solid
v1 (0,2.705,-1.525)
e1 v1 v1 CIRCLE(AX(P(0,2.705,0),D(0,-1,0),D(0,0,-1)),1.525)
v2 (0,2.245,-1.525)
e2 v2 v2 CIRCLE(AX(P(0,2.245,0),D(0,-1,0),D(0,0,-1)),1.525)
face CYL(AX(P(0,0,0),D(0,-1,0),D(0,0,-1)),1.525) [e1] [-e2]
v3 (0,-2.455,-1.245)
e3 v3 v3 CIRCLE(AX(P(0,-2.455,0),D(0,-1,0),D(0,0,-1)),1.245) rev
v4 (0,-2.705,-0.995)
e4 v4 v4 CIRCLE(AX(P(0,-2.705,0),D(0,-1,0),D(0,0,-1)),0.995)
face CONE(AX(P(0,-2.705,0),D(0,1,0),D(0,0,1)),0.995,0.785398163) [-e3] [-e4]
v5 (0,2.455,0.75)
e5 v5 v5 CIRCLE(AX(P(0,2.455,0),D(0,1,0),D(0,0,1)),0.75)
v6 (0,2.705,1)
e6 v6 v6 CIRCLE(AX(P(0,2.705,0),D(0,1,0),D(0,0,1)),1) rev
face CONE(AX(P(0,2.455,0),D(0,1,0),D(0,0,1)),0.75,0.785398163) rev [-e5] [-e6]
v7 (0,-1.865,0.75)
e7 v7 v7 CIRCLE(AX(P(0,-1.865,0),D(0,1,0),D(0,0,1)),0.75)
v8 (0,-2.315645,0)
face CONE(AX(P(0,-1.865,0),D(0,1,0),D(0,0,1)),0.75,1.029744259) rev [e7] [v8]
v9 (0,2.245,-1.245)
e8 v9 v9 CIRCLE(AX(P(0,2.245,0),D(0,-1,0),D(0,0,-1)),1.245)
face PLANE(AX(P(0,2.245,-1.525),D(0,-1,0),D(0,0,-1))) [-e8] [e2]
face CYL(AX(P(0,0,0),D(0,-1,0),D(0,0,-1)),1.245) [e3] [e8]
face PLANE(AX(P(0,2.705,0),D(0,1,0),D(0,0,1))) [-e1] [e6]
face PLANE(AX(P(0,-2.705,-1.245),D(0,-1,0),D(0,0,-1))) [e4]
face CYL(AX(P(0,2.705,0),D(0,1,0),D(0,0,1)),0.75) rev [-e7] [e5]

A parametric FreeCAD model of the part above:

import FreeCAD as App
import Part
import Sketcher

V = App.Vector


def edges_at(feature, points):
    """Names of the edges that pass closest to the given points."""
    edges = feature.Shape.Edges
    near = lambda p: min(range(len(edges)), key=lambda i: edges[i].distToShape(Part.Vertex(*p))[0])
    return sorted({f"Edge{near(p) + 1}" for p in points})

doc = App.newDocument("Part")
body = doc.addObject("PartDesign::Body", "Body")

sketch1 = body.newObject("Sketcher::SketchObject", "Sketch")
sketch1.AttachmentSupport = (doc.getObject("YZ_Plane"), [""])
sketch1.MapMode = "FlatFace"
sketch1.addGeometry(Part.LineSegment(V(2.71, -1.52, 0), V(2.71, 0, 0)), False)
sketch1.addGeometry(Part.LineSegment(V(2.71, 0, 0), V(-2.71, 0, 0)), False)
sketch1.addGeometry(Part.LineSegment(V(-2.71, 0, 0), V(-2.71, -1.25, 0)), False)
sketch1.addGeometry(Part.LineSegment(V(-2.71, -1.25, 0), V(2.25, -1.25, 0)), False)
sketch1.addGeometry(Part.LineSegment(V(2.25, -1.25, 0), V(2.25, -1.52, 0)), False)
sketch1.addGeometry(Part.LineSegment(V(2.25, -1.52, 0), V(2.71, -1.52, 0)), False)
sketch1.addConstraint(Sketcher.Constraint("Coincident", 0, 2, 1, 1))
sketch1.addConstraint(Sketcher.Constraint("Coincident", 1, 2, 2, 1))
sketch1.addConstraint(Sketcher.Constraint("Coincident", 2, 2, 3, 1))
sketch1.addConstraint(Sketcher.Constraint("Coincident", 3, 2, 4, 1))
sketch1.addConstraint(Sketcher.Constraint("Coincident", 4, 2, 5, 1))
sketch1.addConstraint(Sketcher.Constraint("Coincident", 5, 2, 0, 1))
sketch1.addConstraint(Sketcher.Constraint("Vertical", 0))
sketch1.addConstraint(Sketcher.Constraint("Horizontal", 1))
sketch1.addConstraint(Sketcher.Constraint("Vertical", 2))
sketch1.addConstraint(Sketcher.Constraint("Horizontal", 3))
sketch1.addConstraint(Sketcher.Constraint("Vertical", 4))
sketch1.addConstraint(Sketcher.Constraint("Horizontal", 5))
sketch1.addConstraint(Sketcher.Constraint("Symmetric", 0, 2, 1, 2, -1, 1))
sketch1.addConstraint(Sketcher.Constraint("DistanceX", 1, 2, 1, 1, 5.41))
sketch1.addConstraint(Sketcher.Constraint("DistanceX", 3, 1, 3, 2, 4.95))
sketch1.addConstraint(Sketcher.Constraint("DistanceY", 4, 2, 4, 1, 0.28))
sketch1.addConstraint(Sketcher.Constraint("DistanceY", 0, 1, 0, 2, 1.525))
revolution = body.newObject("PartDesign::Revolution", "Revolution")
revolution.Profile = sketch1
revolution.ReferenceAxis = (sketch1, ["H_Axis"])
revolution.Angle = 360

sketch2 = body.newObject("Sketcher::SketchObject", "Sketch001")
sketch2.AttachmentSupport = (doc.getObject("XZ_Plane"), [""])
sketch2.MapMode = "FlatFace"
sketch2.AttachmentOffset = App.Placement(V(0, 0, -2.705), App.Rotation())
sketch2.addGeometry(Part.Circle(V(0, 0, 0), V(0, 0, 1), 0.8), False)
sketch2.addConstraint(Sketcher.Constraint("Coincident", 0, 3, -1, 1))
sketch2.addConstraint(Sketcher.Constraint("Diameter", 0, 1.5))
doc.recompute()
hole = body.newObject("PartDesign::Hole", "Hole")
hole.Profile = sketch2
hole.ThreadType = "None"
hole.Diameter = 1.5
hole.DepthType = "Dimension"
hole.Depth = 4.57
hole.DrillPoint = "Angled"
hole.DrillPointAngle = 118
hole.Reversed = True
doc.recompute()

chamfer = body.newObject("PartDesign::Chamfer", "Chamfer")
chamfer.Base = (hole, edges_at(hole, [(0, -2.705, 1.245)]))
chamfer.Size = 0.25
doc.recompute()

chamfer2 = body.newObject("PartDesign::Chamfer", "Chamfer001")
chamfer2.Base = (chamfer, edges_at(chamfer, [(0, 2.705, 0.75)]))
chamfer2.Size = 0.25

doc.recompute()
